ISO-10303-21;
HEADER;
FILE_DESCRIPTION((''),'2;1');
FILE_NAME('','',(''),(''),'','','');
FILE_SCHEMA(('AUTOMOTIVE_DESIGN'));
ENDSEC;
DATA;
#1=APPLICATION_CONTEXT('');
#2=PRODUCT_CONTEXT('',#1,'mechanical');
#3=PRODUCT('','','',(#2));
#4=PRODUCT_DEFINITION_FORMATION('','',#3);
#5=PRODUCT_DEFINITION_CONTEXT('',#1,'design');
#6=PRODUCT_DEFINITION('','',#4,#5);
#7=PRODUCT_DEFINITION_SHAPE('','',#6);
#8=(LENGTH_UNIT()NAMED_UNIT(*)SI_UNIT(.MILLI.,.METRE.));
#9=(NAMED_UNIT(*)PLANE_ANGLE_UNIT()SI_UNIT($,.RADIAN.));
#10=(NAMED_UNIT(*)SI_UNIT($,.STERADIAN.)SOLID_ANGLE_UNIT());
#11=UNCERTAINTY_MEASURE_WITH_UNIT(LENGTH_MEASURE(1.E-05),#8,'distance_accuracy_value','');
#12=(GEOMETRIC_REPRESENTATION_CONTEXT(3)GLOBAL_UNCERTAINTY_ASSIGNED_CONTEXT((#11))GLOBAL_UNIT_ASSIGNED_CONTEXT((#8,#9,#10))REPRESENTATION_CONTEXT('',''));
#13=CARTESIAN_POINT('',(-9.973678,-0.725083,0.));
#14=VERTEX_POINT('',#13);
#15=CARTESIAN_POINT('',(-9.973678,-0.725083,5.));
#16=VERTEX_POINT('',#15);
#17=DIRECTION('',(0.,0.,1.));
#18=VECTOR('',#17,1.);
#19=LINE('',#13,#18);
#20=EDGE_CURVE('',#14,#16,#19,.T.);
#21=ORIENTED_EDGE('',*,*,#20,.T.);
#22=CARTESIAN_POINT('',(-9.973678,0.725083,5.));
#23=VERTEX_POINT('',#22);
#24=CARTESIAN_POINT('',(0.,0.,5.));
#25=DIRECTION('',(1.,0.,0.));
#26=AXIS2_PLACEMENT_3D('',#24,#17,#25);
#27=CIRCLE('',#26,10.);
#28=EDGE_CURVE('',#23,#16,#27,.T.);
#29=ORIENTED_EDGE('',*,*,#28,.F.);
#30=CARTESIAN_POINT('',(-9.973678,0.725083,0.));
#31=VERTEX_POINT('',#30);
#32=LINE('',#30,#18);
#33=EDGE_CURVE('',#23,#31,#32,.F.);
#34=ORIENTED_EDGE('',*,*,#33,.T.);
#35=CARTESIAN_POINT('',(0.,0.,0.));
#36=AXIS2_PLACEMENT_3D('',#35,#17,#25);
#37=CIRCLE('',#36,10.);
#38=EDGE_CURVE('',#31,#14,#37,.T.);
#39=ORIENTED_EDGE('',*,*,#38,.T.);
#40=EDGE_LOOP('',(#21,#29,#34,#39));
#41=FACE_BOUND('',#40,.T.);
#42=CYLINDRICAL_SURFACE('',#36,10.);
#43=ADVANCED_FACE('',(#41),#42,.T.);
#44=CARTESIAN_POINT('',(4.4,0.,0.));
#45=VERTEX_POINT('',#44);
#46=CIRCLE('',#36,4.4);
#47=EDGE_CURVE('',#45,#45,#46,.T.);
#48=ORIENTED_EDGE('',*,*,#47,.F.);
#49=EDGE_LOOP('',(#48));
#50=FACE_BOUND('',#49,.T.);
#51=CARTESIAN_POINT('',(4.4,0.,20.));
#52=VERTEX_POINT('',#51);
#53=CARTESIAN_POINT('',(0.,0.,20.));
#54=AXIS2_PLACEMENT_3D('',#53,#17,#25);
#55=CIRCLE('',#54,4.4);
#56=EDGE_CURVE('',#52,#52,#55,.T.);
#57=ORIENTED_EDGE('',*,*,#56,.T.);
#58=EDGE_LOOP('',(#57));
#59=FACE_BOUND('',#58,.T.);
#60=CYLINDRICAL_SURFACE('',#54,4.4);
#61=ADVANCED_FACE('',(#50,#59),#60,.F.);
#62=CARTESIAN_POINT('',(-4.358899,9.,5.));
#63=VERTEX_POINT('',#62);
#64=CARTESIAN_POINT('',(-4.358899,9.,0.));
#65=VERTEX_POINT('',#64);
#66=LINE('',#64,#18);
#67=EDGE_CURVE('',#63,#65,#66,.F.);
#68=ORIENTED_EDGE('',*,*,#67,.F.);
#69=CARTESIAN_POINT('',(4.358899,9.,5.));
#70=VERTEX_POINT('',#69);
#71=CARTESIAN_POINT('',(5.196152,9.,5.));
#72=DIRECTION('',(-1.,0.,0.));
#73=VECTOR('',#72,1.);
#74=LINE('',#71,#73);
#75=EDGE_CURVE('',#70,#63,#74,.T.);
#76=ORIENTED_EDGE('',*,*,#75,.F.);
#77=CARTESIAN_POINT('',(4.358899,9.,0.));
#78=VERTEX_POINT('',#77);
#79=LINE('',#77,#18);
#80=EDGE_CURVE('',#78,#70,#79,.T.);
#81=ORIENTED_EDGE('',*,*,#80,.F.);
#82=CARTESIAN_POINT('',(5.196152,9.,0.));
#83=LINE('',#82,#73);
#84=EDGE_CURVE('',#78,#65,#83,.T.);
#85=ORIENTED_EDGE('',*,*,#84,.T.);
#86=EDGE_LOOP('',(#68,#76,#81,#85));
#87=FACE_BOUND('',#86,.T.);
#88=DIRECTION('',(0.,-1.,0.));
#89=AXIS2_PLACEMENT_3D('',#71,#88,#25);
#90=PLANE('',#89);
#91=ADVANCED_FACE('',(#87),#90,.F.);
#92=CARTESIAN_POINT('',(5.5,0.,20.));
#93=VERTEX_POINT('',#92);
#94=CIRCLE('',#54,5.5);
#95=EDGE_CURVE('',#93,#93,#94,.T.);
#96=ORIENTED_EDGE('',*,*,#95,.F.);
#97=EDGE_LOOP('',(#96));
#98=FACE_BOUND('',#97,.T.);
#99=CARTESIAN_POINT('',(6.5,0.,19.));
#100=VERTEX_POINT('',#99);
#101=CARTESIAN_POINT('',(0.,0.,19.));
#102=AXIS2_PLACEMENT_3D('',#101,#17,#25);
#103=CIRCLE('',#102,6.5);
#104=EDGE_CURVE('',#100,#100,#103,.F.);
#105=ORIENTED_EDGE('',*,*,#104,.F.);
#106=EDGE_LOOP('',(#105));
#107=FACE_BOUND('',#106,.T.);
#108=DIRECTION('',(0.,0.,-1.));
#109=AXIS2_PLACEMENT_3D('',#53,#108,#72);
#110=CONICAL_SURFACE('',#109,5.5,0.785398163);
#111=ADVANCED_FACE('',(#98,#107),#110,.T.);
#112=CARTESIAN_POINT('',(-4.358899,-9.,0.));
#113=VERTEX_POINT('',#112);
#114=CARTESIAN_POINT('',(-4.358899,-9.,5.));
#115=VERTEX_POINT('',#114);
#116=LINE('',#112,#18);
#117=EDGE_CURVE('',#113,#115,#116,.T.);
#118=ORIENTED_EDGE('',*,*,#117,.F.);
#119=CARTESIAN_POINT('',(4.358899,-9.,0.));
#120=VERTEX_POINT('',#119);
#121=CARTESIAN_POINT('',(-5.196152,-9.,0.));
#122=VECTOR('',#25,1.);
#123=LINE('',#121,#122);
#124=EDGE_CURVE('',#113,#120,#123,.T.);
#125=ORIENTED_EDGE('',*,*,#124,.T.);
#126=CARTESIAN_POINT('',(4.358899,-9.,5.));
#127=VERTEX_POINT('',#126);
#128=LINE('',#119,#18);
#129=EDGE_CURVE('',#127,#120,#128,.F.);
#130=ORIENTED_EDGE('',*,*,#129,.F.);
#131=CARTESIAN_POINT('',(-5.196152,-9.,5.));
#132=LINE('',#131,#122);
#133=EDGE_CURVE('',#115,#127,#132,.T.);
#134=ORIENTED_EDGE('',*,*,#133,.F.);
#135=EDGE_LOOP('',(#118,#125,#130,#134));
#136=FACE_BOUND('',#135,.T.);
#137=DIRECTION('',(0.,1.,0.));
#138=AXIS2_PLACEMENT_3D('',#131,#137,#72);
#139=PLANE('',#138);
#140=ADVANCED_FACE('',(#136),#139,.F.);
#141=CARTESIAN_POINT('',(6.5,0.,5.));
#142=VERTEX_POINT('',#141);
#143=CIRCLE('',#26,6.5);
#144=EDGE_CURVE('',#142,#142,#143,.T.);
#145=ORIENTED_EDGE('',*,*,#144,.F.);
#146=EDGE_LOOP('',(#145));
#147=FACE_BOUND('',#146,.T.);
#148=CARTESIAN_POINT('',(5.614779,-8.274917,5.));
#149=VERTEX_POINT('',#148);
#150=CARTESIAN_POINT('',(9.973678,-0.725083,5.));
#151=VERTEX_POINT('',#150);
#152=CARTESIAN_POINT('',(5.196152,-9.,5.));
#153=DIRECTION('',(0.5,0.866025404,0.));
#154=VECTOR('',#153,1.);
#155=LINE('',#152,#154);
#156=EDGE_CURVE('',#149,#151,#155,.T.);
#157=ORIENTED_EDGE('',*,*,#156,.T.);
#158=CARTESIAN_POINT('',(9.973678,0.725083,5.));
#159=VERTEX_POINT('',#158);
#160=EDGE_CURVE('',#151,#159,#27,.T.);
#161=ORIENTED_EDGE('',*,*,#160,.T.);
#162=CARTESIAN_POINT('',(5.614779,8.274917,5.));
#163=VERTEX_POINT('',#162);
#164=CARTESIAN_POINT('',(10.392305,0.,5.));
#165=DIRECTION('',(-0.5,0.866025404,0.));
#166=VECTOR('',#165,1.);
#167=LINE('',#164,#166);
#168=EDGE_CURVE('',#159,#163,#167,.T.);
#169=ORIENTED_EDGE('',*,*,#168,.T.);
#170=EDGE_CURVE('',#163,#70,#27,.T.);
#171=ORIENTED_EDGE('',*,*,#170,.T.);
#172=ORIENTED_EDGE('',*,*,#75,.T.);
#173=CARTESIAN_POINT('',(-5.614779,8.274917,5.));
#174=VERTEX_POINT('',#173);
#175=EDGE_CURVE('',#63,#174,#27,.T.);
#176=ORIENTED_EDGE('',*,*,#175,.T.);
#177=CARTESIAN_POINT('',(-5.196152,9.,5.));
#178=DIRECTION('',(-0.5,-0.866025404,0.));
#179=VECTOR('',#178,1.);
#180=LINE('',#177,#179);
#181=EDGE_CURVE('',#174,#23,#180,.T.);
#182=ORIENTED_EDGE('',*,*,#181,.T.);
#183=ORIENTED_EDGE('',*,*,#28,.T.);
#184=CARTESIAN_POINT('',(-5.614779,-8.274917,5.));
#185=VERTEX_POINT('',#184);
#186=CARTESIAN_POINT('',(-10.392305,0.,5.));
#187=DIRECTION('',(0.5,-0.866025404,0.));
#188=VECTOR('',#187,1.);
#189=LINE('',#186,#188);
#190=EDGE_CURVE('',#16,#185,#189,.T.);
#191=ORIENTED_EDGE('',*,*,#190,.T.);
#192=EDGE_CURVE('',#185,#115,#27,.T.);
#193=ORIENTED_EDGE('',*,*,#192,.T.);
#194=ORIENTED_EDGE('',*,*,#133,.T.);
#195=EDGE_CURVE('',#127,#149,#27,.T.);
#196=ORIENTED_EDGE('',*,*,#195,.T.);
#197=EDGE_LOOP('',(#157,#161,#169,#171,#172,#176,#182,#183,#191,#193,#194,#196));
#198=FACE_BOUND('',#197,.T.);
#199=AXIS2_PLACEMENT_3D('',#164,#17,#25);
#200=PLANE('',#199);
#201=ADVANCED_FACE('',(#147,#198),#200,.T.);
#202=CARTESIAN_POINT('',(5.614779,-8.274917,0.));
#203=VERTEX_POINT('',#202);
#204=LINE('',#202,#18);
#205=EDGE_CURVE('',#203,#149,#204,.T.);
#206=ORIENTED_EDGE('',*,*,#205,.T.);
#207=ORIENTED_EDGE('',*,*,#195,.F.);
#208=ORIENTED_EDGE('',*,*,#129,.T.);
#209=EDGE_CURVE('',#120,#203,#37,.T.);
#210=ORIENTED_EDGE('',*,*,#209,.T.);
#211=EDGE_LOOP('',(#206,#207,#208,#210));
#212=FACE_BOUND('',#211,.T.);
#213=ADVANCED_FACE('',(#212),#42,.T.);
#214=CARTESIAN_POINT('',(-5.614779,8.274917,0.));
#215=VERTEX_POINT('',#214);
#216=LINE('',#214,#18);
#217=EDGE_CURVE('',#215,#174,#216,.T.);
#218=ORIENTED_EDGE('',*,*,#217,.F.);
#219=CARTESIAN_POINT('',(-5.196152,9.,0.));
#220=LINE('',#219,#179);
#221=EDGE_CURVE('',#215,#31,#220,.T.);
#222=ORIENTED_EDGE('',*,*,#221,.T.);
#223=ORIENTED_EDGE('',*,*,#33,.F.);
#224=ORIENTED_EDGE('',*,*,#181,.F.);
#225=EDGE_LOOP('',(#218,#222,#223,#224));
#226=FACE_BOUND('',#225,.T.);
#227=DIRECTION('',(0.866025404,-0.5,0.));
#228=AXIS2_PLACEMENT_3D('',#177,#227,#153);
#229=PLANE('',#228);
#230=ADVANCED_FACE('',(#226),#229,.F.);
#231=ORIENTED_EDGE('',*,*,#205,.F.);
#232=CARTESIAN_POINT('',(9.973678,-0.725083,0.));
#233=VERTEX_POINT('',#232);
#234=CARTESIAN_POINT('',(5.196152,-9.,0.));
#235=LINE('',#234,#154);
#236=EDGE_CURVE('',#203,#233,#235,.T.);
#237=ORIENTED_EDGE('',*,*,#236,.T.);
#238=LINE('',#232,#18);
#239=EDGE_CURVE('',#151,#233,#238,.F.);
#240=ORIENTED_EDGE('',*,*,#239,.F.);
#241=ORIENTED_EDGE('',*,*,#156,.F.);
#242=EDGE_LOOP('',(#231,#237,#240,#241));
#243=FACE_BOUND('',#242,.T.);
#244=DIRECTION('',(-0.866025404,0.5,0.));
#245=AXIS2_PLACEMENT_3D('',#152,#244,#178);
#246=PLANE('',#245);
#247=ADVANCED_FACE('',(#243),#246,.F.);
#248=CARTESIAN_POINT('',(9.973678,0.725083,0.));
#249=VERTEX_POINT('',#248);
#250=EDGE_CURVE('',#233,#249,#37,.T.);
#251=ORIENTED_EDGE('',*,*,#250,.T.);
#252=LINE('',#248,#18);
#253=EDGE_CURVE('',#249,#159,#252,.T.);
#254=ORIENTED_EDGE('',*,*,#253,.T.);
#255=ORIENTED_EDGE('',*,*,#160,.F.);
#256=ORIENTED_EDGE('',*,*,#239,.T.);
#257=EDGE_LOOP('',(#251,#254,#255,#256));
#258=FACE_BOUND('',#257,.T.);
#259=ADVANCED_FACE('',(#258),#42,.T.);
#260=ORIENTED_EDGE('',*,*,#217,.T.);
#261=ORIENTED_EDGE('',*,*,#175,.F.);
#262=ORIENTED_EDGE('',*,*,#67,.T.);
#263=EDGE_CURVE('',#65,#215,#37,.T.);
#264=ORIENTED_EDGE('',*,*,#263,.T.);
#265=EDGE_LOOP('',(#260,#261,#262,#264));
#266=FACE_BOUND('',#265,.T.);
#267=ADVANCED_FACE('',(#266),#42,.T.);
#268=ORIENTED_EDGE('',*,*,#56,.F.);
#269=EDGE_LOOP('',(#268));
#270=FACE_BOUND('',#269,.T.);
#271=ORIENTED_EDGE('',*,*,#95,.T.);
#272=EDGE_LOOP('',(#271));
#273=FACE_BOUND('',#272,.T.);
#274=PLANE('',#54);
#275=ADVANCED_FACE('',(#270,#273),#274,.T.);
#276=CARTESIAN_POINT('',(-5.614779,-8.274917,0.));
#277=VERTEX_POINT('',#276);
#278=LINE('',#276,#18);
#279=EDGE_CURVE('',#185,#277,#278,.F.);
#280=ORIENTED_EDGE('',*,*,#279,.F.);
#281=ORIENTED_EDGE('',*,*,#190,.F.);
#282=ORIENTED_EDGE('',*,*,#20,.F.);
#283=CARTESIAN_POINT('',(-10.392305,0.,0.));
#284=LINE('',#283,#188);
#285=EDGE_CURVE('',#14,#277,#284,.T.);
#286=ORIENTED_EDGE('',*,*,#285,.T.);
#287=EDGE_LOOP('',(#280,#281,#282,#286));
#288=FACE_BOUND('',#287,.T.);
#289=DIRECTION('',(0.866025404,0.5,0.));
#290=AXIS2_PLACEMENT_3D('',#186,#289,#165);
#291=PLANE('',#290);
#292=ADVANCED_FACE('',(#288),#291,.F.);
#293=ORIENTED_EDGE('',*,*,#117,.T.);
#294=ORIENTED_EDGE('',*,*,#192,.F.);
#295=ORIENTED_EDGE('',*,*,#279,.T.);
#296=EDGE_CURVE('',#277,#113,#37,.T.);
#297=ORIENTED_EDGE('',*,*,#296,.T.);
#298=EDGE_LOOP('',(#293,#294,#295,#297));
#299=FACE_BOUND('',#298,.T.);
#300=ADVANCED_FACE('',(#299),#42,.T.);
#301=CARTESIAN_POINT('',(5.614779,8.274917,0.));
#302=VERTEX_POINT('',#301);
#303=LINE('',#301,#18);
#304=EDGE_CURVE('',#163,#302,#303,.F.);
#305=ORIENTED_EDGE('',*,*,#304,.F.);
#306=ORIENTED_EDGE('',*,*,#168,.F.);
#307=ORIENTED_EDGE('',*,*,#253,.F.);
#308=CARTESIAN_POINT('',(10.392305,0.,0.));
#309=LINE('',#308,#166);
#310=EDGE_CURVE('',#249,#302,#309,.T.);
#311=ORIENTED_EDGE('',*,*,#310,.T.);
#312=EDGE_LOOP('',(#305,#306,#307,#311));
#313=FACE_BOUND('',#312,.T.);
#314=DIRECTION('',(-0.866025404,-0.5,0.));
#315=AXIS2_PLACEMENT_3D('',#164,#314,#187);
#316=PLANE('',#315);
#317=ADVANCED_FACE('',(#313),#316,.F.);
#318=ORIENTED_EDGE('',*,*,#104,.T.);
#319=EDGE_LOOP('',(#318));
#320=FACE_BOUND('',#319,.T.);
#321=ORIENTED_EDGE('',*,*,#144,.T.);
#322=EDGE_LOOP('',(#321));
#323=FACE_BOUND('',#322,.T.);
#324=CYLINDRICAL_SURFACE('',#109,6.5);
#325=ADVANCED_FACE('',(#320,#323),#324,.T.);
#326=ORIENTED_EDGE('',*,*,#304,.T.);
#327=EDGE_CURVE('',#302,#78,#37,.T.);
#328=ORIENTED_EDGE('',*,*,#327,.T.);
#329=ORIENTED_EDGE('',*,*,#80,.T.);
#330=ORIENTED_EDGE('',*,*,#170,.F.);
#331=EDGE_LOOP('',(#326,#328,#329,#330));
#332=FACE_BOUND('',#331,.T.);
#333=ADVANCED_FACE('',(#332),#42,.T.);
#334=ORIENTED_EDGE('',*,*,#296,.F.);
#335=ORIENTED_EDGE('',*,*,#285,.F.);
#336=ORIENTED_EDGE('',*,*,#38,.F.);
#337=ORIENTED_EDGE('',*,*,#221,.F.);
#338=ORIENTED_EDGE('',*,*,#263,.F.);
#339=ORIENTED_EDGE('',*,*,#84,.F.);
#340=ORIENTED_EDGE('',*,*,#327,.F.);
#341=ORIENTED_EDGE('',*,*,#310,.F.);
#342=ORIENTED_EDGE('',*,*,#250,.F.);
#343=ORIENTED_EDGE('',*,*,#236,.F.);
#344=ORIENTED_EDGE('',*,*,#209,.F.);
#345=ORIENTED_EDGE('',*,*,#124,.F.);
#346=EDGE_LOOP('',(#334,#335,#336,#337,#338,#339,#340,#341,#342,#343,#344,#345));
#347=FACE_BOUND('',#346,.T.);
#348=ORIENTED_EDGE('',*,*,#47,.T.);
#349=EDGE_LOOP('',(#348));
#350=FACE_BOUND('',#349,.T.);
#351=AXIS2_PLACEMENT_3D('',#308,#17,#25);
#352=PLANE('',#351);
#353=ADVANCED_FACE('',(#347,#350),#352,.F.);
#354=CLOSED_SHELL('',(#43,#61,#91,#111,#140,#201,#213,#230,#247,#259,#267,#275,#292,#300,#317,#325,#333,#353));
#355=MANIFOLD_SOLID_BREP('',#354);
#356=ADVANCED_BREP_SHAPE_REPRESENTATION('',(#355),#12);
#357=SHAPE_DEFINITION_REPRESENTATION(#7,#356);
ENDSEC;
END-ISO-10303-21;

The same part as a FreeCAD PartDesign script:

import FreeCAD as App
import Part
import Sketcher
Q = App.Units.Quantity


def edges_at(feature, points):
    """Names of the edges that pass closest to the given points."""
    edges = feature.Shape.Edges
    near = lambda p: min(range(len(edges)), key=lambda i: edges[i].distToShape(Part.Vertex(*p))[0])
    return sorted({f"Edge{near(p) + 1}" for p in points})


def add_polygon(sketch, points):
    """Adds a closed chain of lines whose ends are joined by coincident constraints."""
    first, n = sketch.GeometryCount, len(points)
    for a, b in zip(points, points[1:] + points[:1]):
        sketch.addGeometry(Part.LineSegment(App.Vector(*a, 0), App.Vector(*b, 0)), False)
    for i in range(n):
        sketch.addConstraint(Sketcher.Constraint("Coincident", first + i, 2, first + (i + 1) % n, 1))

doc = App.newDocument("Part")
body = doc.addObject("PartDesign::Body", "Body")

# Sketch on XY plane
sketch1 = body.newObject("Sketcher::SketchObject", "Sketch")
sketch1.AttachmentSupport = (doc.getObject("XY_Plane"), [""])
sketch1.MapMode = "FlatFace"
add_polygon(sketch1, [(10, 0), (5, 9), (-5, 9), (-10, 0), (-5, -9), (5, -9)])  # lines 0-5
sketch1.addConstraint(Sketcher.Constraint("Horizontal", 1))
sketch1.addConstraint(Sketcher.Constraint("Horizontal", 4))
sketch1.addConstraint(Sketcher.Constraint("Symmetric", 0, 2, 3, 2, -1, 1))
sketch1.addConstraint(Sketcher.Constraint("Symmetric", 2, 2, 5, 2, -1, 1))
sketch1.addConstraint(Sketcher.Constraint("PointOnObject", 2, 2, -1))
sketch1.addConstraint(Sketcher.Constraint("Parallel", 2, 5))
sketch1.addConstraint(Sketcher.Constraint("Vertical", 1, 2, 3, 2))
sketch1.addConstraint(Sketcher.Constraint("Angle", 0, Q("120 deg")))
sketch1.addConstraint(Sketcher.Constraint("DistanceY", -1, 1, 0, 2, 9.0))
sketch1.addConstraint(Sketcher.Constraint("DistanceX", 1, 2, 1, 1, 10.392305))
pad1 = body.newObject("PartDesign::Pad", "Pad")
pad1.Profile = sketch1
pad1.Length = 5

# Sketch on XY plane
sketch2 = body.newObject("Sketcher::SketchObject", "Sketch001")
sketch2.AttachmentSupport = (doc.getObject("XY_Plane"), [""])
sketch2.MapMode = "FlatFace"
sketch2.AttachmentOffset = App.Placement(App.Vector(0, 0, 5), App.Rotation())
sketch2.addGeometry(Part.Circle(App.Vector(0, 0, 0), App.Vector(0, 0, 1), 6), False)
sketch2.addConstraint(Sketcher.Constraint("Coincident", 0, 3, -1, 1))
sketch2.addConstraint(Sketcher.Constraint("Diameter", 0, 13.0))
pad2 = body.newObject("PartDesign::Pad", "Pad001")
pad2.Profile = sketch2
pad2.Length = 15

# Sketch on XY plane
sketch3 = body.newObject("Sketcher::SketchObject", "Sketch002")
sketch3.AttachmentSupport = (doc.getObject("XY_Plane"), [""])
sketch3.MapMode = "FlatFace"
sketch3.AttachmentOffset = App.Placement(App.Vector(0, 0, 5), App.Rotation())
add_polygon(sketch3, [(-15, 13), (-15, -13), (15, -13), (15, 13)])  # lines 0-3
sketch3.addGeometry(Part.Circle(App.Vector(0, 0, 0), App.Vector(0, 0, 1), 10), False)  # 4
sketch3.addConstraint(Sketcher.Constraint("Vertical", 0))
sketch3.addConstraint(Sketcher.Constraint("Horizontal", 1))
sketch3.addConstraint(Sketcher.Constraint("Vertical", 2))
sketch3.addConstraint(Sketcher.Constraint("Horizontal", 3))
sketch3.addConstraint(Sketcher.Constraint("Coincident", 4, 3, -1, 1))
sketch3.addConstraint(Sketcher.Constraint("Symmetric", 0, 2, 2, 2, -1, 1))
sketch3.addConstraint(Sketcher.Constraint("Diameter", 4, 20.0))
sketch3.addConstraint(Sketcher.Constraint("DistanceY", 0, 2, 0, 1, 26.8))
sketch3.addConstraint(Sketcher.Constraint("DistanceX", 1, 1, 1, 2, 29.584))
pocket1 = body.newObject("PartDesign::Pocket", "Pocket")
pocket1.Profile = sketch3
pocket1.Type = "ThroughAll"
doc.recompute()

chamfer = body.newObject("PartDesign::Chamfer", "Chamfer")
chamfer.Base = (pocket1, edges_at(pocket1, [(-6.5, 0, 20)]))
chamfer.Size = 1

# Sketch on XY plane
sketch4 = body.newObject("Sketcher::SketchObject", "Sketch003")
sketch4.AttachmentSupport = (doc.getObject("XY_Plane"), [""])
sketch4.MapMode = "FlatFace"
sketch4.AttachmentOffset = App.Placement(App.Vector(0, 0, 20), App.Rotation())
sketch4.addGeometry(Part.Circle(App.Vector(0, 0, 0), App.Vector(0, 0, 1), 4.4), False)
sketch4.addConstraint(Sketcher.Constraint("Coincident", 0, 3, -1, 1))
sketch4.addConstraint(Sketcher.Constraint("Diameter", 0, 8.8))
doc.recompute()
hole = body.newObject("PartDesign::Hole", "Hole")
hole.Profile = sketch4
hole.ThreadType = "None"
hole.Diameter = 8.8
hole.DepthType = "ThroughAll"

doc.recompute()
